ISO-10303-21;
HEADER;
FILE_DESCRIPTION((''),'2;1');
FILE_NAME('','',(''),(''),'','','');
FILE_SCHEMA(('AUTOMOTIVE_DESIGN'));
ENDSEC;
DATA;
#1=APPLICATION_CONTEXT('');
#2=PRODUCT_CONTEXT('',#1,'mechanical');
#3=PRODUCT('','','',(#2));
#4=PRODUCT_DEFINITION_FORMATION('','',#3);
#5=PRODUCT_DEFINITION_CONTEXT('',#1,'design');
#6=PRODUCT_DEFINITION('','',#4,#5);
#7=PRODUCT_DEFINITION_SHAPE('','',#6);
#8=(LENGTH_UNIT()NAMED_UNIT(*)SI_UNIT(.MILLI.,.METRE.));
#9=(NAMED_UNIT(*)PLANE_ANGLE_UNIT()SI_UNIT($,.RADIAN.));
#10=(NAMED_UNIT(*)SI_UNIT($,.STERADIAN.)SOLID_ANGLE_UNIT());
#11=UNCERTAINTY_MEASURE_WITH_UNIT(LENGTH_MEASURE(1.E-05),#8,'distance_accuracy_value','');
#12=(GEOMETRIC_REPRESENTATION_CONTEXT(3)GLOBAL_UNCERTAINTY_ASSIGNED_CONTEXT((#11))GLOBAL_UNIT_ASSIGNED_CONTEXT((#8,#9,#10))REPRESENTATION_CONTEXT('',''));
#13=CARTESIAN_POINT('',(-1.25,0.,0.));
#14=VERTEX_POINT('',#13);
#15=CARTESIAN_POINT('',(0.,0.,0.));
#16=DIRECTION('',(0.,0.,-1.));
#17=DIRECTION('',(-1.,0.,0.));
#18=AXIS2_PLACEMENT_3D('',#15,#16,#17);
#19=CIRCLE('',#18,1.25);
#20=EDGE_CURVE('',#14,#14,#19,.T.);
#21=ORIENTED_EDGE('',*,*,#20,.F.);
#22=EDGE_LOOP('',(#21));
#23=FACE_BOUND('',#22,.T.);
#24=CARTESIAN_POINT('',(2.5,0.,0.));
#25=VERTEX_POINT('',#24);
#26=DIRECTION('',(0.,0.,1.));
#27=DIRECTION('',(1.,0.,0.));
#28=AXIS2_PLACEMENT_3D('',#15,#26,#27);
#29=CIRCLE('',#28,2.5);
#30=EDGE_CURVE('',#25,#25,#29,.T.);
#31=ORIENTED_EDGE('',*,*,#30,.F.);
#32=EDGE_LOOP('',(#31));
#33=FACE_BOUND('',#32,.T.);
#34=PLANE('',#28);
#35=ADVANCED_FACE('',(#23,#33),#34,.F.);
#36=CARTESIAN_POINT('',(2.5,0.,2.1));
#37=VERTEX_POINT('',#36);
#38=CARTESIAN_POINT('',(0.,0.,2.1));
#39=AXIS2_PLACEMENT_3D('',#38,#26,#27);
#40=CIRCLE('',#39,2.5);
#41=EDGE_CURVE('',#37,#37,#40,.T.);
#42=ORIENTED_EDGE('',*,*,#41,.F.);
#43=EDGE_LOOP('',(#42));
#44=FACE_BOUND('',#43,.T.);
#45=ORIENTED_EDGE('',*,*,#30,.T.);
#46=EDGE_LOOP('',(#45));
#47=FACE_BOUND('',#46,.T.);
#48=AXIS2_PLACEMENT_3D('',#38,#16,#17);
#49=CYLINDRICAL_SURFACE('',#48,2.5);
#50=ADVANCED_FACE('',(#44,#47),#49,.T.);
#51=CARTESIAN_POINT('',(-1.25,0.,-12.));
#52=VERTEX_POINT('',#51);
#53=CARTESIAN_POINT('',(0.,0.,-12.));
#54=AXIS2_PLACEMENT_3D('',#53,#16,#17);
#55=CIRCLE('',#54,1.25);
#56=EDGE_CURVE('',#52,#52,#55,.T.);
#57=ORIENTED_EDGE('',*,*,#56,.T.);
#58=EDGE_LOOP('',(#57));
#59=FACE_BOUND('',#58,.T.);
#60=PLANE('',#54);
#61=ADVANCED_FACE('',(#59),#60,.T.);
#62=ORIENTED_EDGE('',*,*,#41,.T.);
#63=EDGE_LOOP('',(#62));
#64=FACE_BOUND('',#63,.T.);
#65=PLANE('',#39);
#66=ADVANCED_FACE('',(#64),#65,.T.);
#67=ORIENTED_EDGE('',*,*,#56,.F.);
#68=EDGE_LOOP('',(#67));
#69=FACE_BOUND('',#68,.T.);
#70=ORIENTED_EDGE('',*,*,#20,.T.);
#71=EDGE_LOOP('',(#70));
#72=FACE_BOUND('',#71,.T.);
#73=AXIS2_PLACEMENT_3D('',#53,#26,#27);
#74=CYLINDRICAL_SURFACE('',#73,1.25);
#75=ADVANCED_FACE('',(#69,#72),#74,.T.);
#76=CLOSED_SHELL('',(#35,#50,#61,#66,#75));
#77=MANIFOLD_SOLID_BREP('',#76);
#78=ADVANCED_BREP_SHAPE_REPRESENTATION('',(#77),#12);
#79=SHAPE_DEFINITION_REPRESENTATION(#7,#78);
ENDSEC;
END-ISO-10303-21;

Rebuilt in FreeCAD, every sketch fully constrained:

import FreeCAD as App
import Part
import Sketcher
from FreeCAD import Vector
Q = App.Units.Quantity

doc = App.newDocument("Part")
params = doc.addObject("Spreadsheet::Sheet", "Params")
for row, (alias, value) in enumerate([
    ("sketch1_diameter", "5 mm"),
    ("pad1_length", "2.1 mm"),
    ("sketch2_diameter", "2.5 mm"),
    ("pad2_length", "12 mm"),
], start=1):
    params.set(f"A{row}", alias)
    params.set(f"B{row}", "=" + value)
    params.setAlias(f"B{row}", alias)

body = doc.addObject("PartDesign::Body", "Body")

# Sketch on XY plane
sketch1 = doc.addObject("Sketcher::SketchObject", "Sketch")
body.addObject(sketch1)
sketch1.AttachmentSupport = (doc.XY_Plane, [""])
sketch1.MapMode = "FlatFace"
sketch1.addGeometry(Part.Circle(Vector(0, 0, 0), Vector(0, 0, 1), 2.5), False)
sketch1.addConstraint([
    Sketcher.Constraint("Coincident", 0, 3, -1, 1),
    Sketcher.Constraint("Diameter", 0, Q("5 mm")),
])
sketch1.setExpression("Constraints[1]", "Params.sketch1_diameter")
pad1 = doc.addObject("PartDesign::Pad", "Pad")
body.addObject(pad1)
pad1.Profile = sketch1
pad1.setExpression("Length", "Params.pad1_length")

# Sketch on XY plane
sketch2 = doc.addObject("Sketcher::SketchObject", "Sketch001")
body.addObject(sketch2)
sketch2.AttachmentSupport = (doc.XY_Plane, [""])
sketch2.MapMode = "FlatFace"
sketch2.addGeometry(Part.Circle(Vector(0, 0, 0), Vector(0, 0, 1), 1.2), False)
sketch2.addConstraint([
    Sketcher.Constraint("Coincident", 0, 3, -1, 1),
    Sketcher.Constraint("Diameter", 0, Q("2.5 mm")),
])
sketch2.setExpression("Constraints[1]", "Params.sketch2_diameter")
pad2 = doc.addObject("PartDesign::Pad", "Pad001")
body.addObject(pad2)
pad2.Profile = sketch2
pad2.setExpression("Length", "Params.pad2_length")
pad2.Reversed = True

doc.recompute()
